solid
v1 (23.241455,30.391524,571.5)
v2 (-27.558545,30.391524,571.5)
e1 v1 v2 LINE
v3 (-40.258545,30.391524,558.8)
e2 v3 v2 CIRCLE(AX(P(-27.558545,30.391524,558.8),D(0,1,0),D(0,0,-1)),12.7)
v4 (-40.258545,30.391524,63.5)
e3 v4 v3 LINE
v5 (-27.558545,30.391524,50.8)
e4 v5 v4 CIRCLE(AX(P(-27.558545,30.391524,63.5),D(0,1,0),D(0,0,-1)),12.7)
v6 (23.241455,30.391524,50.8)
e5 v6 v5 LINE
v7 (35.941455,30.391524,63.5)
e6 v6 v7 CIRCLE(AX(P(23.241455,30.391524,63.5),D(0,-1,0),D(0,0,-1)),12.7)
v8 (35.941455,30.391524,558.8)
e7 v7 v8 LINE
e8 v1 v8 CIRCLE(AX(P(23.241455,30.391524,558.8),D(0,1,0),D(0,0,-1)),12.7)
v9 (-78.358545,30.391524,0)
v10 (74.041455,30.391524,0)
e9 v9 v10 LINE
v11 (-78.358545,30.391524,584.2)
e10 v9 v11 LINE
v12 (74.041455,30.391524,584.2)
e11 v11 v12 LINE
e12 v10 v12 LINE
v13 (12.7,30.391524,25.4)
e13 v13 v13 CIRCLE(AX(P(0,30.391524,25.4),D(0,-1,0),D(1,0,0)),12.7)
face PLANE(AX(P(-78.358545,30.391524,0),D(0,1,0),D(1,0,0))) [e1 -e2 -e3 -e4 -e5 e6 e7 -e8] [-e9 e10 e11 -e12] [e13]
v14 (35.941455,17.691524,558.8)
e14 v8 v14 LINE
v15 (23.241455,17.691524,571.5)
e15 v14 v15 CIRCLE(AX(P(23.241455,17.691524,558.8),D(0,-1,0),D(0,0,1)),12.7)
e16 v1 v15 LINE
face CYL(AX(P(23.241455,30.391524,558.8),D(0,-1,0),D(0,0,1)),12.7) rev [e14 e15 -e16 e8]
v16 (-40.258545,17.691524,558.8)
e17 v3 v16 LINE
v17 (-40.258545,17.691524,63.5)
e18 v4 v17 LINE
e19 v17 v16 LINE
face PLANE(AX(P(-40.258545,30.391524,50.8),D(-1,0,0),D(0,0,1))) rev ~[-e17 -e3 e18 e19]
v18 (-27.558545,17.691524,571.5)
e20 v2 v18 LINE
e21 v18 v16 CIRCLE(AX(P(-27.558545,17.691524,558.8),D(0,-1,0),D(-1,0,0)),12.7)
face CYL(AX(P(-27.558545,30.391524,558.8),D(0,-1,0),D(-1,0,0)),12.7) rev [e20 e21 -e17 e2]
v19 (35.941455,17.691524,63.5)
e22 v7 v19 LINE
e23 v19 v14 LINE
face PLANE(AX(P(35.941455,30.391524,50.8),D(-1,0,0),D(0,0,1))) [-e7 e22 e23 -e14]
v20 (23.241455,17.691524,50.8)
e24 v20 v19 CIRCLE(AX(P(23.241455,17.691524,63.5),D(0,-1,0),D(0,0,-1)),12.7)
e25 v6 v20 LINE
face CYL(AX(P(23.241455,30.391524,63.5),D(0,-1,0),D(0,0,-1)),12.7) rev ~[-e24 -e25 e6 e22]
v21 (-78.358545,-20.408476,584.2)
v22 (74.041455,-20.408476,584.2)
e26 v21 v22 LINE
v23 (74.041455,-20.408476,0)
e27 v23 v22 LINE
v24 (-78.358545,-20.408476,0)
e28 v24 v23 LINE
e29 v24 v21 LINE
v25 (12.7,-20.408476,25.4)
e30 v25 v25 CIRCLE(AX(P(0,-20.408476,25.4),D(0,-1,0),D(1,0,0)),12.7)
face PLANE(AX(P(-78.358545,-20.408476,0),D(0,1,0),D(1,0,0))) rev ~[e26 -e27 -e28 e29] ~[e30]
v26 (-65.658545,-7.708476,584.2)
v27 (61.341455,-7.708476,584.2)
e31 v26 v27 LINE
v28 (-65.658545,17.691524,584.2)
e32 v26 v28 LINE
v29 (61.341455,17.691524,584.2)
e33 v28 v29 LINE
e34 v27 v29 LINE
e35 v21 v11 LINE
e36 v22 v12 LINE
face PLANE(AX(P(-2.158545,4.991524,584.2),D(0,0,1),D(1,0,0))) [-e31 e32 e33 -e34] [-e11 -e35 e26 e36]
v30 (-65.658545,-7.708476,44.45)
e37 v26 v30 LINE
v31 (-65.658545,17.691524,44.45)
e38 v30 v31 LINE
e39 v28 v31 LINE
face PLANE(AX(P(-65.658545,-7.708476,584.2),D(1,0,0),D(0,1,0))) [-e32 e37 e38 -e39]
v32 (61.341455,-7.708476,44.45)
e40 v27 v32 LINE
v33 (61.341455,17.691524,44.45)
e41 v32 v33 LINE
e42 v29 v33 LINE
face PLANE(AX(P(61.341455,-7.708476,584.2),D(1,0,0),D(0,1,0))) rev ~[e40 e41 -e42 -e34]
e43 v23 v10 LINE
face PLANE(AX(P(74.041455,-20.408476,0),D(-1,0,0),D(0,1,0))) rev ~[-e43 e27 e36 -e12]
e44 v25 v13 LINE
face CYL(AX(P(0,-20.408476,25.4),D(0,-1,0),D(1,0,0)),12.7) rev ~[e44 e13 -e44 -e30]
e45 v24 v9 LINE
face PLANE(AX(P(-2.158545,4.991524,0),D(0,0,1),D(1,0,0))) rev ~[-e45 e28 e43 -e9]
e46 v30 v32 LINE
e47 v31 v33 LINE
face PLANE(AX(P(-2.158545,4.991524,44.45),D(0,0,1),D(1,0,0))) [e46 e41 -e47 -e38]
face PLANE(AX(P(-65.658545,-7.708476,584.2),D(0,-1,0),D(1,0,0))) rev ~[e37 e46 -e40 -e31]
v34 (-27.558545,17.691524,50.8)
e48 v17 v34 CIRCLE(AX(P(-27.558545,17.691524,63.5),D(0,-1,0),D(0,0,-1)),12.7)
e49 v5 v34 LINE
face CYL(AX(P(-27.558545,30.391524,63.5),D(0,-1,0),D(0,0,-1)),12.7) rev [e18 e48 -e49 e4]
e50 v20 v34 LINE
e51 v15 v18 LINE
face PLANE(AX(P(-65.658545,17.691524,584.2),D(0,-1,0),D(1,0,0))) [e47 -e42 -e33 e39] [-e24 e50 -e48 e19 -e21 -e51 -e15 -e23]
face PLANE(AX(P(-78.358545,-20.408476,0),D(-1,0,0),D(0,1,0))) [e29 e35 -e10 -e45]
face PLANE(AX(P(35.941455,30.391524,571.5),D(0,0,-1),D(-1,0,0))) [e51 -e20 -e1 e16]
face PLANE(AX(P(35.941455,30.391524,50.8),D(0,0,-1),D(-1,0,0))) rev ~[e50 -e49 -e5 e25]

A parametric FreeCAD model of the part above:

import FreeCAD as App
import Part
import Sketcher
Q = App.Units.Quantity


def edges_at(feature, points):
    """Names of the edges that pass closest to the given points."""
    edges = feature.Shape.Edges
    near = lambda p: min(range(len(edges)), key=lambda i: edges[i].distToShape(Part.Vertex(*p))[0])
    return sorted({f"Edge{near(p) + 1}" for p in points})


def add_polygon(sketch, points):
    """Adds a closed chain of lines whose ends are joined by coincident constraints."""
    first, n = sketch.GeometryCount, len(points)
    for a, b in zip(points, points[1:] + points[:1]):
        sketch.addGeometry(Part.LineSegment(App.Vector(*a, 0), App.Vector(*b, 0)), False)
    for i in range(n):
        sketch.addConstraint(Sketcher.Constraint("Coincident", first + i, 2, first + (i + 1) % n, 1))

doc = App.newDocument("Part")
params = doc.addObject("Spreadsheet::Sheet", "Params")
for row, (alias, value) in enumerate([
    ("sketch1_width", "6 in"),
    ("sketch1_height", "2 in"),
    ("pad1_length", "23 in"),
    ("sketch2_diameter", "1 in"),
    ("sketch3_width", "3 in"),
    ("sketch3_height", "20.5 in"),
    ("pocket2_length", "1 in"),
    ("fillet_radius", "0.5 in"),
    ("sketch4_width", "5 in"),
    ("sketch4_height", "1 in"),
    ("pocket3_length", "21.25 in"),
], start=1):
    params.set(f"A{row}", alias)
    params.set(f"B{row}", "=" + value)
    params.setAlias(f"B{row}", alias)

body = doc.addObject("PartDesign::Body", "Body")

sketch1 = body.newObject("Sketcher::SketchObject", "Sketch")
sketch1.AttachmentSupport = (doc.getObject("XY_Plane"), [""])
sketch1.MapMode = "FlatFace"
add_polygon(sketch1, [(-78, 30), (-78, -20), (74, -20), (74, 30)])
sketch1.addConstraint(Sketcher.Constraint("Vertical", 0))
sketch1.addConstraint(Sketcher.Constraint("Horizontal", 1))
sketch1.addConstraint(Sketcher.Constraint("Vertical", 2))
sketch1.addConstraint(Sketcher.Constraint("Horizontal", 3))
sketch1.addConstraint(Sketcher.Constraint("DistanceX", 1, 1, 1, 2, Q("6 in")))
sketch1.addConstraint(Sketcher.Constraint("DistanceY", 0, 2, 0, 1, Q("2 in")))
sketch1.addConstraint(Sketcher.Constraint("DistanceX", 0, 2, -1, 1, 78.358545))
sketch1.addConstraint(Sketcher.Constraint("DistanceY", 0, 2, -1, 1, 20.408476))
sketch1.setExpression("Constraints[8]", "Params.sketch1_width")
sketch1.setExpression("Constraints[9]", "Params.sketch1_height")
pad1 = body.newObject("PartDesign::Pad", "Pad")
pad1.Profile = sketch1
pad1.setExpression("Length", "Params.pad1_length")

sketch2 = body.newObject("Sketcher::SketchObject", "Sketch001")
sketch2.AttachmentSupport = (doc.getObject("XZ_Plane"), [""])
sketch2.MapMode = "FlatFace"
sketch2.AttachmentOffset = App.Placement(App.Vector(0, 0, 20.408476), App.Rotation())
sketch2.addGeometry(Part.Circle(App.Vector(0, 25, 0), App.Vector(0, 0, 1), 13), False)
sketch2.addConstraint(Sketcher.Constraint("PointOnObject", 0, 3, -2))
sketch2.addConstraint(Sketcher.Constraint("Diameter", 0, Q("1 in")))
sketch2.addConstraint(Sketcher.Constraint("DistanceY", -1, 1, 0, 3, Q("1 in")))
sketch2.setExpression("Constraints[1]", "Params.sketch2_diameter")
pocket1 = body.newObject("PartDesign::Pocket", "Pocket")
pocket1.Profile = sketch2
pocket1.Type = "ThroughAll"

sketch3 = body.newObject("Sketcher::SketchObject", "Sketch002")
sketch3.AttachmentSupport = (doc.getObject("XZ_Plane"), [""])
sketch3.MapMode = "FlatFace"
sketch3.AttachmentOffset = App.Placement(App.Vector(0, 0, -30.391524), App.Rotation())
add_polygon(sketch3, [(36, 572), (36, 51), (-40, 51), (-40, 572)])
sketch3.addConstraint(Sketcher.Constraint("Vertical", 0))
sketch3.addConstraint(Sketcher.Constraint("Horizontal", 1))
sketch3.addConstraint(Sketcher.Constraint("Vertical", 2))
sketch3.addConstraint(Sketcher.Constraint("Horizontal", 3))
sketch3.addConstraint(Sketcher.Constraint("DistanceX", 1, 2, 1, 1, Q("3 in")))
sketch3.addConstraint(Sketcher.Constraint("DistanceY", 0, 2, 0, 1, Q("20.5 in")))
sketch3.addConstraint(Sketcher.Constraint("DistanceY", -1, 1, 0, 2, Q("2 in")))
sketch3.addConstraint(Sketcher.Constraint("DistanceX", -1, 1, 0, 2, 35.941455))
sketch3.setExpression("Constraints[8]", "Params.sketch3_width")
sketch3.setExpression("Constraints[9]", "Params.sketch3_height")
pocket2 = body.newObject("PartDesign::Pocket", "Pocket001")
pocket2.Profile = sketch3
pocket2.setExpression("Length", "Params.pocket2_length")
pocket2.Reversed = True
doc.recompute()

fillet = body.newObject("PartDesign::Fillet", "Fillet")
fillet.Base = (pocket2, edges_at(pocket2, [
    (35.941, 17.692, 50.8),
    (-40.259, 17.692, 50.8),
    (-40.259, 17.692, 571.5),
    (35.941, 17.692, 571.5),
]))
fillet.setExpression("Radius", "Params.fillet_radius")

sketch4 = body.newObject("Sketcher::SketchObject", "Sketch003")
sketch4.AttachmentSupport = (doc.getObject("XY_Plane"), [""])
sketch4.MapMode = "FlatFace"
sketch4.AttachmentOffset = App.Placement(App.Vector(0, 0, 23 * 25.4), App.Rotation())
add_polygon(sketch4, [(-66, 18), (-66, -8), (61, -8), (61, 18)])
sketch4.addConstraint(Sketcher.Constraint("Vertical", 0))
sketch4.addConstraint(Sketcher.Constraint("Horizontal", 1))
sketch4.addConstraint(Sketcher.Constraint("Vertical", 2))
sketch4.addConstraint(Sketcher.Constraint("Horizontal", 3))
sketch4.addConstraint(Sketcher.Constraint("DistanceX", 1, 1, 1, 2, Q("5 in")))
sketch4.addConstraint(Sketcher.Constraint("DistanceY", 0, 2, 0, 1, Q("1 in")))
sketch4.addConstraint(Sketcher.Constraint("DistanceX", 0, 2, -1, 1, 65.658545))
sketch4.addConstraint(Sketcher.Constraint("DistanceY", 0, 2, -1, 1, 7.708476))
sketch4.setExpression("Constraints[8]", "Params.sketch4_width")
sketch4.setExpression("Constraints[9]", "Params.sketch4_height")
pocket3 = body.newObject("PartDesign::Pocket", "Pocket002")
pocket3.Profile = sketch4
pocket3.setExpression("Length", "Params.pocket3_length")

doc.recompute()
